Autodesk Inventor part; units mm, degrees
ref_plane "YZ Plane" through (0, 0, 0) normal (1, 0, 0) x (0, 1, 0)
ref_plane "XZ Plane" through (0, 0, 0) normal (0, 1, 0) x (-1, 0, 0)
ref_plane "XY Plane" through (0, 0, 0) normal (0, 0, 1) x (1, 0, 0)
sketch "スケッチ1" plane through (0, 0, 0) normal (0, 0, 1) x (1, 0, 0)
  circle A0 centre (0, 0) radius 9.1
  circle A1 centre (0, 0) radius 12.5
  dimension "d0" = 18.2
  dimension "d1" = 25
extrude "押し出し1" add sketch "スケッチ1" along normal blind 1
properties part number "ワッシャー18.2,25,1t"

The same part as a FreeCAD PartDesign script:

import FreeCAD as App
import Part
import Sketcher
from FreeCAD import Vector
Q = App.Units.Quantity

doc = App.newDocument("Part")
body = doc.addObject("PartDesign::Body", "Body")

sketch1 = doc.addObject("Sketcher::SketchObject", "Sketch")
body.addObject(sketch1)
sketch1.AttachmentSupport = (doc.XY_Plane, [""])
sketch1.MapMode = "FlatFace"
sketch1.addGeometry([
    Part.Circle(Vector(0, 0, 0), Vector(0, 0, 1), 12),
    Part.Circle(Vector(0, 0, 0), Vector(0, 0, 1), 9),
], False)
sketch1.addConstraint([
    Sketcher.Constraint("Coincident", 0, 3, -1, 1),
    Sketcher.Constraint("Coincident", 1, 3, -1, 1),
    Sketcher.Constraint("Diameter", 0, Q("25 mm")),
    Sketcher.Constraint("Diameter", 1, Q("18.2 mm")),
])
pad1 = doc.addObject("PartDesign::Pad", "Pad")
body.addObject(pad1)
pad1.Profile = sketch1
pad1.Length = 1

doc.recompute()
